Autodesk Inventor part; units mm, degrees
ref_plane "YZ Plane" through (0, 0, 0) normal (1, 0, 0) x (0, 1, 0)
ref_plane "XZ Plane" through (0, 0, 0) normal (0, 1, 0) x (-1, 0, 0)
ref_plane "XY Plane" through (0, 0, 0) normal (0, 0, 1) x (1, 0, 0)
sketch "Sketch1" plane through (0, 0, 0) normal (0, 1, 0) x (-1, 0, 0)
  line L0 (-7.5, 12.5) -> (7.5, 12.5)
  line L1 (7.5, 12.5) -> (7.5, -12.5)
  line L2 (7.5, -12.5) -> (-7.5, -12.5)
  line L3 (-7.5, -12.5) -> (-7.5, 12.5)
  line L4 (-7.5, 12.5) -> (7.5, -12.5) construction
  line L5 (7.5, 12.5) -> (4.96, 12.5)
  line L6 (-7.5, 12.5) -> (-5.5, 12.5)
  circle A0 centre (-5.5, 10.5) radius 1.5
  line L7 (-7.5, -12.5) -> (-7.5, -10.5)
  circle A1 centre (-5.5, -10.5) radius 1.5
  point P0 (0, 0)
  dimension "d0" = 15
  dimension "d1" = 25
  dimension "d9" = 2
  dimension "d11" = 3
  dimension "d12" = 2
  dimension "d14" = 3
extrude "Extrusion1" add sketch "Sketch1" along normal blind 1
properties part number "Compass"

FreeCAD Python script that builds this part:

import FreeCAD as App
import Part
import Sketcher

V = App.Vector
Q = App.Units.Quantity

doc = App.newDocument("Part")
body = doc.addObject("PartDesign::Body", "Body")

# Sketch on XZ plane
sketch1 = body.newObject("Sketcher::SketchObject", "Sketch")
sketch1.AttachmentSupport = (doc.getObject("XZ_Plane"), [""])
sketch1.MapMode = "FlatFace"
sketch1.addGeometry([
    Part.LineSegment(V(-7.5, 12.5, 0), V(7.5, 12.5, 0)),  # 0
    Part.LineSegment(V(7.5, 12.5, 0), V(7.5, -12.5, 0)),  # 1
    Part.LineSegment(V(7.5, -12.5, 0), V(-7.5, -12.5, 0)),  # 2
    Part.LineSegment(V(-7.5, -12.5, 0), V(-7.5, 12.5, 0)),  # 3
    Part.Circle(V(5.5, -10.5, 0), V(0, 0, 1), 1.5),  # 4
    Part.Circle(V(5.5, 10.5, 0), V(0, 0, 1), 1.5),  # 5
], False)
sketch1.addConstraint([
    Sketcher.Constraint("Coincident", 0, 2, 1, 1),
    Sketcher.Constraint("Coincident", 1, 2, 2, 1),
    Sketcher.Constraint("Coincident", 2, 2, 3, 1),
    Sketcher.Constraint("Coincident", 3, 2, 0, 1),
    Sketcher.Constraint("Horizontal", 0),
    Sketcher.Constraint("Vertical", 1),
    Sketcher.Constraint("Horizontal", 2),
    Sketcher.Constraint("Vertical", 3),
    Sketcher.Constraint("Equal", 4, 5),
    Sketcher.Constraint("Symmetric", 0, 2, 2, 2, -1, 1),
    Sketcher.Constraint("Symmetric", 4, 3, 5, 3, -1),
    Sketcher.Constraint("Diameter", 4, Q("3 mm")),
    Sketcher.Constraint("DistanceX", 0, 1, 0, 2, Q("15 mm")),
    Sketcher.Constraint("DistanceY", 1, 2, 1, 1, Q("25 mm")),
    Sketcher.Constraint("DistanceX", 5, 3, 0, 2, Q("2 mm")),
    Sketcher.Constraint("DistanceY", 5, 3, 0, 2, Q("2 mm")),
])
pad1 = body.newObject("PartDesign::Pad", "Pad")
pad1.Profile = sketch1
pad1.Length = 1
pad1.Reversed = True

doc.recompute()
